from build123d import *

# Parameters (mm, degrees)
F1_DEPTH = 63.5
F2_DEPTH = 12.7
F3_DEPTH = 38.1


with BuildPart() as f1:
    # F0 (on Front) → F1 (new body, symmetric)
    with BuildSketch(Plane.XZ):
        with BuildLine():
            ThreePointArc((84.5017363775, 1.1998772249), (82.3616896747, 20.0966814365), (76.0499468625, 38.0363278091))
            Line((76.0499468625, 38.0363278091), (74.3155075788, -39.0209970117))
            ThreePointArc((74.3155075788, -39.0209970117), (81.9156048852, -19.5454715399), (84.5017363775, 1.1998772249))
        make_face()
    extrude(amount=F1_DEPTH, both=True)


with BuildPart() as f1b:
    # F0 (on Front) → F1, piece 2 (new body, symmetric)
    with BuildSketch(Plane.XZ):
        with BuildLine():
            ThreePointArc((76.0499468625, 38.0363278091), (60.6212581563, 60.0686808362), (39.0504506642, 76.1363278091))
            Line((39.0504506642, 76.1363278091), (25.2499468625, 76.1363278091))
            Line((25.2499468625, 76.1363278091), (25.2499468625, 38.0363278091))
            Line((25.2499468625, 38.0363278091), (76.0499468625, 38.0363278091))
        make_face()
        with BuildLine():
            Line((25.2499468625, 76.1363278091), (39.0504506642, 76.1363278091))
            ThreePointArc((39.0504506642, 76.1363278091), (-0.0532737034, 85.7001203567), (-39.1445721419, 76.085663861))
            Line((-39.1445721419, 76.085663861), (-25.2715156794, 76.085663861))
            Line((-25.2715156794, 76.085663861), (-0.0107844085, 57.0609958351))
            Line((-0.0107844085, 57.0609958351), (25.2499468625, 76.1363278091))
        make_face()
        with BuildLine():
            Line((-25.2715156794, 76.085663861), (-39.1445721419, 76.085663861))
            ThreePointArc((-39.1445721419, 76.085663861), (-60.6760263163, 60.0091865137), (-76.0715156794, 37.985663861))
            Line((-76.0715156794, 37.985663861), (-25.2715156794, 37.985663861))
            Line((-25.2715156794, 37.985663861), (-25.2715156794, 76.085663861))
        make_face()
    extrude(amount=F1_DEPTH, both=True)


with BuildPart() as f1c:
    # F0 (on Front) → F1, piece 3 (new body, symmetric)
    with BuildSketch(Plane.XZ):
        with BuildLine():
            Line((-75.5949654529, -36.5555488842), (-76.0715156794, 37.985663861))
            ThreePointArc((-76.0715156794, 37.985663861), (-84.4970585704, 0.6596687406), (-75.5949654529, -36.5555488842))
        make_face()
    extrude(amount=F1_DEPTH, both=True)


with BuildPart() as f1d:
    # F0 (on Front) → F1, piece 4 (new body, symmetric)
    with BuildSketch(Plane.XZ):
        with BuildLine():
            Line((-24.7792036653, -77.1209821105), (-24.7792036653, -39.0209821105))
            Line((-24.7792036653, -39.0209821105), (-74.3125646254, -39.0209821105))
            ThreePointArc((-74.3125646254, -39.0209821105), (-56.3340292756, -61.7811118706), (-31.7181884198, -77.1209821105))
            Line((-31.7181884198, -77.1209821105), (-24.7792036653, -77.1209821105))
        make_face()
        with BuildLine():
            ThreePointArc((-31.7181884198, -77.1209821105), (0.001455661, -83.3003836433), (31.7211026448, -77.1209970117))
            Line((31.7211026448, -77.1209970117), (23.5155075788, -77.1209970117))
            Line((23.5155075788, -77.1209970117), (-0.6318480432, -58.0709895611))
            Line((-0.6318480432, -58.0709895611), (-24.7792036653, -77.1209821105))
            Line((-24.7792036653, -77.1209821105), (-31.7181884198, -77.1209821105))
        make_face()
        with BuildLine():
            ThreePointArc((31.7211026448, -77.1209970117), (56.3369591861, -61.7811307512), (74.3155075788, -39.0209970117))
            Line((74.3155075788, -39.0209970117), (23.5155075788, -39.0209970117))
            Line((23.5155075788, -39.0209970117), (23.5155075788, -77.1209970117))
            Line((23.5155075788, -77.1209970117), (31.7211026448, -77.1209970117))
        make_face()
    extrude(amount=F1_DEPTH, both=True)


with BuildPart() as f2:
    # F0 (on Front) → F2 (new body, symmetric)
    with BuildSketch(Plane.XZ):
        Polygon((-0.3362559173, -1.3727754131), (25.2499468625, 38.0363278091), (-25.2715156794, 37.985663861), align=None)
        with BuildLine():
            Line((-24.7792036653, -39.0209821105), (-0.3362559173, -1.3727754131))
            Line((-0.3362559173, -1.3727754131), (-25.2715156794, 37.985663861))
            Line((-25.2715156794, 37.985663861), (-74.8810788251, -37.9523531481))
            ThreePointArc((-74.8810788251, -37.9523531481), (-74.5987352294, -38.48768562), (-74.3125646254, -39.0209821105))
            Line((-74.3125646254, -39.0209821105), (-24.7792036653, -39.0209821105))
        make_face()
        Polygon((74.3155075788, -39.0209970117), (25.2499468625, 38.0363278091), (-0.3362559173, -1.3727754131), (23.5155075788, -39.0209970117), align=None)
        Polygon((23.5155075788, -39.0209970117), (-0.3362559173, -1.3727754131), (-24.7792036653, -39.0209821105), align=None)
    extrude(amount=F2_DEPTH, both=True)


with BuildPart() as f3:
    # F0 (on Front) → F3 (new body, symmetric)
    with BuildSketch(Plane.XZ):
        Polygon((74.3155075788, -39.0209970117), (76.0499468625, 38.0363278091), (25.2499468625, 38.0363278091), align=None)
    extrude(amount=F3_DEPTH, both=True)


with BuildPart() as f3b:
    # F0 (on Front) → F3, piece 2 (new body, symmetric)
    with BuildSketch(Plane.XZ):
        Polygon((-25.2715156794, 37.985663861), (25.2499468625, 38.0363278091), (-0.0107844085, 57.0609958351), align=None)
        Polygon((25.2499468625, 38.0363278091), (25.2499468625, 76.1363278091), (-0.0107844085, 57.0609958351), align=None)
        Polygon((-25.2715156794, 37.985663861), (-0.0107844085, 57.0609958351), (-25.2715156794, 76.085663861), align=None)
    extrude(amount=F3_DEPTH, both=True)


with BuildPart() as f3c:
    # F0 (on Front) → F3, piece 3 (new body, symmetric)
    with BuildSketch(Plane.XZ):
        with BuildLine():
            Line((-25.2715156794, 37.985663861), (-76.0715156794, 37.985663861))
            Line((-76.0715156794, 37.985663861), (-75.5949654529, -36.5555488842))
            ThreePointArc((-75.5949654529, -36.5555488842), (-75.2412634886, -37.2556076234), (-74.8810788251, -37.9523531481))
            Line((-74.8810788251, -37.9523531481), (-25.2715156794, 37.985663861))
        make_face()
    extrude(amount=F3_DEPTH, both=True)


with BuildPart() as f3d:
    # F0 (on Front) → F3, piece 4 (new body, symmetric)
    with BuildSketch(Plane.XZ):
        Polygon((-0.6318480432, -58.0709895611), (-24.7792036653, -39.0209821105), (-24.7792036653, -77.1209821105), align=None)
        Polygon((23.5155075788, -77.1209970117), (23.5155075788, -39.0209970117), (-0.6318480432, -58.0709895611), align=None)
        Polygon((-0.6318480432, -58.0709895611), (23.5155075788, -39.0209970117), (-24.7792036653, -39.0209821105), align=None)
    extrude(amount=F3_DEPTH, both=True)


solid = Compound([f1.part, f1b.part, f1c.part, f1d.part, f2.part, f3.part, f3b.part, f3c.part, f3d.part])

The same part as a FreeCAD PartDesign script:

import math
import FreeCAD as App
import Part
import Sketcher
from FreeCAD import Vector
Q = App.Units.Quantity

doc = App.newDocument("Part")
params = doc.addObject("Spreadsheet::Sheet", "Params")
for row, (alias, value) in enumerate([
    ("pad1_length", "5 in"),
    ("sketch2_width", "2 in"),
    ("sketch2_height", "1.5 in"),
    ("pad2_length", "5 in"),
    ("pad3_length", "5 in"),
    ("sketch4_width", "2 in"),
    ("sketch4_height", "1.5 in"),
    ("pad4_length", "5 in"),
    ("sketch5_width", "2 in"),
    ("pad5_length", "1 in"),
    ("sketch6_width", "2 in"),
    ("pad6_length", "3 in"),
    ("sketch7_height", "1.5 in"),
    ("pad7_length", "3 in"),
    ("sketch8_width", "2 in"),
    ("pad8_length", "3 in"),
    ("sketch9_height", "1.5 in"),
    ("pad9_length", "3 in"),
], start=1):
    params.set(f"A{row}", alias)
    params.set(f"B{row}", "=" + value)
    params.setAlias(f"B{row}", alias)

body = doc.addObject("PartDesign::Body", "Body")

# Sketch on XZ plane
sketch1 = body.newObject("Sketcher::SketchObject", "Sketch")
sketch1.AttachmentSupport = (doc.getObject("XZ_Plane"), [""])
sketch1.MapMode = "FlatFace"
sketch1.addGeometry([
    Part.ArcOfCircle(Part.Circle(Vector(0, 1, 0), Vector(0, 0, 1), 85), math.radians(0), math.radians(26)),
    Part.LineSegment(Vector(76, 38, 0), Vector(74, -39, 0)),
    Part.ArcOfCircle(Part.Circle(Vector(0, 1, 0), Vector(0, 0, 1), 85), math.radians(-28), math.radians(0)),
], False)
sketch1.addConstraint([
    Sketcher.Constraint("Coincident", 0, 2, 1, 1),
    Sketcher.Constraint("Coincident", 1, 2, 2, 1),
    Sketcher.Constraint("Tangent", 2, 2, 0, 1),
    Sketcher.Constraint("Equal", 0, 2),
    Sketcher.Constraint("Horizontal", 0, 3, 2, 2),
    Sketcher.Constraint("Radius", 0, 84.500261),
    Sketcher.Constraint("DistanceX", 2, 3, 0, 2, 76.048471),
    Sketcher.Constraint("DistanceX", 1, 2, 0, 2, 1.734439),
    Sketcher.Constraint("DistanceX", -1, 1, 0, 3, 0.001476),
    Sketcher.Constraint("DistanceY", -1, 1, 0, 3, 1.199877),
])
pad1 = body.newObject("PartDesign::Pad", "Pad")
pad1.Profile = sketch1
pad1.setExpression("Length", "Params.pad1_length")
pad1.Midplane = True
body2 = doc.addObject("PartDesign::Body", "Body001")

# Sketch on XZ plane
sketch2 = body2.newObject("Sketcher::SketchObject", "Sketch001")
sketch2.AttachmentSupport = (doc.getObject("XZ_Plane001"), [""])
sketch2.MapMode = "FlatFace"
sketch2.addGeometry([
    Part.ArcOfCircle(Part.Circle(Vector(0, 1, 0), Vector(0, 0, 1), 85), math.radians(26), math.radians(62)),  # 0
    Part.ArcOfCircle(Part.Circle(Vector(0, 1, 0), Vector(0, 0, 1), 85), math.radians(62), math.radians(118)),  # 1
    Part.ArcOfCircle(Part.Circle(Vector(0, 1, 0), Vector(0, 0, 1), 85), math.radians(118), math.radians(154)),  # 2
    Part.LineSegment(Vector(-76, 38, 0), Vector(-25, 38, 0)),  # 3
    Part.LineSegment(Vector(-25, 38, 0), Vector(-25, 76, 0)),  # 4
    Part.LineSegment(Vector(-25, 76, 0), Vector(0, 57, 0)),  # 5
    Part.LineSegment(Vector(0, 57, 0), Vector(25, 76, 0)),  # 6
    Part.LineSegment(Vector(25, 76, 0), Vector(25, 38, 0)),  # 7
    Part.LineSegment(Vector(25, 38, 0), Vector(76, 38, 0)),  # 8
], False)
sketch2.addConstraint([
    Sketcher.Constraint("Tangent", 0, 2, 1, 1),
    Sketcher.Constraint("Tangent", 1, 2, 2, 1),
    Sketcher.Constraint("Coincident", 2, 2, 3, 1),
    Sketcher.Constraint("Coincident", 3, 2, 4, 1),
    Sketcher.Constraint("Coincident", 4, 2, 5, 1),
    Sketcher.Constraint("Coincident", 5, 2, 6, 1),
    Sketcher.Constraint("Coincident", 6, 2, 7, 1),
    Sketcher.Constraint("Coincident", 7, 2, 8, 1),
    Sketcher.Constraint("Coincident", 8, 2, 0, 1),
    Sketcher.Constraint("Horizontal", 3),
    Sketcher.Constraint("Vertical", 4),
    Sketcher.Constraint("Vertical", 7),
    Sketcher.Constraint("Horizontal", 8),
    Sketcher.Constraint("Coincident", 2, 3, 0, 3),
    Sketcher.Constraint("Horizontal", 1, 2, 4, 2),
    Sketcher.Constraint("Horizontal", 0, 2, 6, 2),
    Sketcher.Constraint("Equal", 3, 8),
    Sketcher.Constraint("Equal", 4, 7),
    Sketcher.Constraint("DistanceX", 3, 1, 3, 2, Q("2 in")),
    Sketcher.Constraint("DistanceY", 4, 1, 4, 2, Q("1.5 in")),
    Sketcher.Constraint("Radius", 0, 84.500261),
    Sketcher.Constraint("Distance", 5, 31.623449),
    Sketcher.Constraint("DistanceX", -1, 1, 0, 2, 39.050451),
    Sketcher.Constraint("DistanceY", 1, 3, 0, 2, 74.936451),
    Sketcher.Constraint("DistanceX", 2, 2, 1, 3, 76.072991),
    Sketcher.Constraint("DistanceX", 4, 2, 5, 2, 25.260731),
    Sketcher.Constraint("DistanceY", -1, 1, 0, 3, 1.199877),
])
sketch2.setExpression("Constraints[18]", "Params.sketch2_width")
sketch2.setExpression("Constraints[19]", "Params.sketch2_height")
pad2 = body2.newObject("PartDesign::Pad", "Pad001")
pad2.Profile = sketch2
pad2.setExpression("Length", "Params.pad2_length")
pad2.Midplane = True
body3 = doc.addObject("PartDesign::Body", "Body002")

# Sketch on XZ plane
sketch3 = body3.newObject("Sketcher::SketchObject", "Sketch002")
sketch3.AttachmentSupport = (doc.getObject("XZ_Plane002"), [""])
sketch3.MapMode = "FlatFace"
sketch3.addGeometry([
    Part.LineSegment(Vector(-76, -37, 0), Vector(-76, 38, 0)),
    Part.ArcOfCircle(Part.Circle(Vector(0, 1, 0), Vector(0, 0, 1), 85), math.radians(154), math.radians(207)),
], False)
sketch3.addConstraint([
    Sketcher.Constraint("Coincident", 0, 1, 1, 2),
    Sketcher.Constraint("Coincident", 1, 1, 0, 2),
    Sketcher.Constraint("Radius", 1, 84.500261),
    Sketcher.Constraint("DistanceY", 0, 1, -1, 1, 36.555549),
    Sketcher.Constraint("DistanceX", 0, 1, 1, 3, 75.596441),
    Sketcher.Constraint("DistanceX", 1, 1, 0, 1, 0.47655),
    Sketcher.Constraint("DistanceX", -1, 1, 1, 3, 0.001476),
])
pad3 = body3.newObject("PartDesign::Pad", "Pad002")
pad3.Profile = sketch3
pad3.setExpression("Length", "Params.pad3_length")
pad3.Midplane = True
body4 = doc.addObject("PartDesign::Body", "Body003")

# Sketch on XZ plane
sketch4 = body4.newObject("Sketcher::SketchObject", "Sketch003")
sketch4.AttachmentSupport = (doc.getObject("XZ_Plane003"), [""])
sketch4.MapMode = "FlatFace"
sketch4.addGeometry([
    Part.LineSegment(Vector(-25, -77, 0), Vector(-25, -39, 0)),  # 0
    Part.LineSegment(Vector(-25, -39, 0), Vector(-74, -39, 0)),  # 1
    Part.ArcOfCircle(Part.Circle(Vector(0, 1, 0), Vector(0, 0, 1), 85), math.radians(-152), math.radians(-112)),  # 2
    Part.ArcOfCircle(Part.Circle(Vector(0, 1, 0), Vector(0, 0, 1), 85), math.radians(-112), math.radians(-68)),  # 3
    Part.ArcOfCircle(Part.Circle(Vector(0, 1, 0), Vector(0, 0, 1), 85), math.radians(-68), math.radians(-28)),  # 4
    Part.LineSegment(Vector(74, -39, 0), Vector(24, -39, 0)),  # 5
    Part.LineSegment(Vector(24, -39, 0), Vector(24, -77, 0)),  # 6
    Part.LineSegment(Vector(24, -77, 0), Vector(-1, -58, 0)),  # 7
    Part.LineSegment(Vector(-1, -58, 0), Vector(-25, -77, 0)),  # 8
], False)
sketch4.addConstraint([
    Sketcher.Constraint("Coincident", 0, 2, 1, 1),
    Sketcher.Constraint("Coincident", 1, 2, 2, 1),
    Sketcher.Constraint("Tangent", 2, 2, 3, 1),
    Sketcher.Constraint("Tangent", 3, 2, 4, 1),
    Sketcher.Constraint("Coincident", 4, 2, 5, 1),
    Sketcher.Constraint("Coincident", 5, 2, 6, 1),
    Sketcher.Constraint("Coincident", 6, 2, 7, 1),
    Sketcher.Constraint("Coincident", 7, 2, 8, 1),
    Sketcher.Constraint("Coincident", 8, 2, 0, 1),
    Sketcher.Constraint("Vertical", 0),
    Sketcher.Constraint("Horizontal", 1),
    Sketcher.Constraint("Horizontal", 5),
    Sketcher.Constraint("Vertical", 6),
    Sketcher.Constraint("Coincident", 4, 3, 2, 3),
    Sketcher.Constraint("Horizontal", 3, 2, 6, 2),
    Sketcher.Constraint("Horizontal", 2, 2, 8, 2),
    Sketcher.Constraint("Equal", 0, 6),
    Sketcher.Constraint("DistanceX", 5, 2, 5, 1, Q("2 in")),
    Sketcher.Constraint("DistanceY", 0, 1, 0, 2, Q("1.5 in")),
    Sketcher.Constraint("Radius", 2, 84.500261),
    Sketcher.Constraint("DistanceX", 1, 2, 1, 1, 49.533361),
    Sketcher.Constraint("DistanceX", 2, 2, -1, 1, 31.718188),
    Sketcher.Constraint("DistanceX", 7, 2, -1, 1, 0.631848),
    Sketcher.Constraint("DistanceY", 7, 2, -1, 1, 58.07099),
    Sketcher.Constraint("DistanceX", 0, 2, 2, 3, 24.780679),
    Sketcher.Constraint("DistanceX", 2, 2, 3, 2, 63.439291),
    Sketcher.Constraint("Distance", 7, 30.757073),
])
sketch4.setExpression("Constraints[17]", "Params.sketch4_width")
sketch4.setExpression("Constraints[18]", "Params.sketch4_height")
pad4 = body4.newObject("PartDesign::Pad", "Pad003")
pad4.Profile = sketch4
pad4.setExpression("Length", "Params.pad4_length")
pad4.Midplane = True
body5 = doc.addObject("PartDesign::Body", "Body004")

# Sketch on XZ plane
sketch5 = body5.newObject("Sketcher::SketchObject", "Sketch004")
sketch5.AttachmentSupport = (doc.getObject("XZ_Plane004"), [""])
sketch5.MapMode = "FlatFace"
sketch5.addGeometry([
    Part.LineSegment(Vector(25.2, 38, 0), Vector(-25.3, 38, 0)),  # 0
    Part.LineSegment(Vector(-25.3, 38, 0), Vector(-74.9, -38, 0)),  # 1
    Part.ArcOfCircle(Part.Circle(Vector(0, 1.2, 0), Vector(0, 0, 1), 84.5), math.radians(-152.4), math.radians(-151.58)),  # 2
    Part.LineSegment(Vector(-74.3, -39, 0), Vector(-24.8, -39, 0)),  # 3
    Part.LineSegment(Vector(-24.8, -39, 0), Vector(23.5, -39, 0)),  # 4
    Part.LineSegment(Vector(23.5, -39, 0), Vector(74.3, -39, 0)),  # 5
    Part.LineSegment(Vector(74.3, -39, 0), Vector(25.2, 38, 0)),  # 6
], False)
sketch5.addConstraint([
    Sketcher.Constraint("Coincident", 0, 2, 1, 1),
    Sketcher.Constraint("Coincident", 1, 2, 2, 1),
    Sketcher.Constraint("Coincident", 2, 2, 3, 1),
    Sketcher.Constraint("Coincident", 3, 2, 4, 1),
    Sketcher.Constraint("Coincident", 4, 2, 5, 1),
    Sketcher.Constraint("Coincident", 5, 2, 6, 1),
    Sketcher.Constraint("Coincident", 6, 2, 0, 1),
    Sketcher.Constraint("Horizontal", 3),
    Sketcher.Constraint("Horizontal", 5),
    Sketcher.Constraint("DistanceX", 5, 1, 5, 2, Q("2 in")),
    Sketcher.Constraint("Angle", 4, Q("-0.000018 deg")),
    Sketcher.Constraint("Radius", 2, 84.50026),
    Sketcher.Constraint("DistanceX", 3, 1, 3, 2, 49.533361),
    Sketcher.Constraint("Distance", 1, 90.706621),
    Sketcher.Constraint("Distance", 4, 48.294711),
    Sketcher.Constraint("DistanceX", 1, 2, -1, 1, 74.881079),
    Sketcher.Constraint("DistanceX", 0, 2, 2, 3, 25.27299),
    Sketcher.Constraint("DistanceY", 1, 2, 2, 3, 39.15223),
    Sketcher.Constraint("DistanceY", 2, 2, 1, 2, 1.068629),
    Sketcher.Constraint("DistanceY", 2, 3, 6, 2, 36.836451),
    Sketcher.Constraint("DistanceX", 4, 2, 6, 2, 1.734439),
    Sketcher.Constraint("DistanceY", -1, 1, 2, 3, 1.199877),
])
sketch5.setExpression("Constraints[9]", "Params.sketch5_width")
pad5 = body5.newObject("PartDesign::Pad", "Pad004")
pad5.Profile = sketch5
pad5.setExpression("Length", "Params.pad5_length")
pad5.Midplane = True
body6 = doc.addObject("PartDesign::Body", "Body005")

# Sketch on XZ plane
sketch6 = body6.newObject("Sketcher::SketchObject", "Sketch005")
sketch6.AttachmentSupport = (doc.getObject("XZ_Plane005"), [""])
sketch6.MapMode = "FlatFace"
sketch6.addGeometry([
    Part.LineSegment(Vector(74, -39, 0), Vector(76, 38, 0)),
    Part.LineSegment(Vector(76, 38, 0), Vector(25, 38, 0)),
    Part.LineSegment(Vector(25, 38, 0), Vector(74, -39, 0)),
], False)
sketch6.addConstraint([
    Sketcher.Constraint("Coincident", 0, 2, 1, 1),
    Sketcher.Constraint("Coincident", 1, 2, 2, 1),
    Sketcher.Constraint("Coincident", 2, 2, 0, 1),
    Sketcher.Constraint("Horizontal", 1),
    Sketcher.Constraint("DistanceX", 1, 2, 1, 1, Q("2 in")),
    Sketcher.Constraint("DistanceX", 2, 2, 0, 2, 1.734439),
    Sketcher.Constraint("Distance", 0, 77.076842),
    Sketcher.Constraint("DistanceX", -1, 1, 0, 2, 76.049947),
    Sketcher.Constraint("DistanceY", -1, 1, 0, 2, 38.036328),
])
sketch6.setExpression("Constraints[4]", "Params.sketch6_width")
pad6 = body6.newObject("PartDesign::Pad", "Pad005")
pad6.Profile = sketch6
pad6.setExpression("Length", "Params.pad6_length")
pad6.Midplane = True
body7 = doc.addObject("PartDesign::Body", "Body006")

# Sketch on XZ plane
sketch7 = body7.newObject("Sketcher::SketchObject", "Sketch006")
sketch7.AttachmentSupport = (doc.getObject("XZ_Plane006"), [""])
sketch7.MapMode = "FlatFace"
sketch7.addGeometry([
    Part.LineSegment(Vector(-25, 38, 0), Vector(25, 38, 0)),  # 0
    Part.LineSegment(Vector(25, 38, 0), Vector(25, 76, 0)),  # 1
    Part.LineSegment(Vector(25, 76, 0), Vector(0, 57, 0)),  # 2
    Part.LineSegment(Vector(0, 57, 0), Vector(-25, 76, 0)),  # 3
    Part.LineSegment(Vector(-25, 76, 0), Vector(-25, 38, 0)),  # 4
], False)
sketch7.addConstraint([
    Sketcher.Constraint("Coincident", 0, 2, 1, 1),
    Sketcher.Constraint("Coincident", 1, 2, 2, 1),
    Sketcher.Constraint("Coincident", 2, 2, 3, 1),
    Sketcher.Constraint("Coincident", 3, 2, 4, 1),
    Sketcher.Constraint("Coincident", 4, 2, 0, 1),
    Sketcher.Constraint("Vertical", 1),
    Sketcher.Constraint("Vertical", 4),
    Sketcher.Constraint("Equal", 1, 4),
    Sketcher.Constraint("DistanceY", 1, 1, 1, 2, Q("1.5 in")),
    Sketcher.Constraint("Distance", 3, 31.623449),
    Sketcher.Constraint("DistanceX", 2, 2, 0, 2, 25.260731),
    Sketcher.Constraint("DistanceY", 0, 2, 2, 2, 19.024668),
    Sketcher.Constraint("DistanceX", 3, 2, 2, 2, 25.260731),
    Sketcher.Constraint("DistanceX", -1, 1, 0, 2, 25.249947),
    Sketcher.Constraint("DistanceY", -1, 1, 0, 2, 38.036328),
])
sketch7.setExpression("Constraints[8]", "Params.sketch7_height")
pad7 = body7.newObject("PartDesign::Pad", "Pad006")
pad7.Profile = sketch7
pad7.setExpression("Length", "Params.pad7_length")
pad7.Midplane = True
body8 = doc.addObject("PartDesign::Body", "Body007")

# Sketch on XZ plane
sketch8 = body8.newObject("Sketcher::SketchObject", "Sketch007")
sketch8.AttachmentSupport = (doc.getObject("XZ_Plane007"), [""])
sketch8.MapMode = "FlatFace"
sketch8.addGeometry([
    Part.LineSegment(Vector(-25.3, 38, 0), Vector(-76.1, 38, 0)),
    Part.LineSegment(Vector(-76.1, 38, 0), Vector(-75.6, -36.6, 0)),
    Part.ArcOfCircle(Part.Circle(Vector(0, 1.2, 0), Vector(0, 0, 1), 84.5), math.radians(-153.46), math.radians(-152.4)),
    Part.LineSegment(Vector(-74.9, -38, 0), Vector(-25.3, 38, 0)),
], False)
sketch8.addConstraint([
    Sketcher.Constraint("Coincident", 0, 2, 1, 1),
    Sketcher.Constraint("Coincident", 1, 2, 2, 1),
    Sketcher.Constraint("Coincident", 2, 2, 3, 1),
    Sketcher.Constraint("Coincident", 3, 2, 0, 1),
    Sketcher.Constraint("Horizontal", 0),
    Sketcher.Constraint("DistanceX", 0, 2, 0, 1, Q("2 in")),
    Sketcher.Constraint("Radius", 2, 84.500261),
    Sketcher.Constraint("Distance", 3, 90.706621),
    Sketcher.Constraint("DistanceY", 1, 2, -1, 1, 36.555549),
    Sketcher.Constraint("DistanceX", 2, 2, -1, 1, 74.881079),
    Sketcher.Constraint("DistanceX", 0, 2, 2, 3, 76.072992),
    Sketcher.Constraint("DistanceX", 0, 2, 1, 2, 0.47655),
    Sketcher.Constraint("DistanceY", 2, 2, 2, 3, 39.152231),
])
sketch8.setExpression("Constraints[5]", "Params.sketch8_width")
pad8 = body8.newObject("PartDesign::Pad", "Pad007")
pad8.Profile = sketch8
pad8.setExpression("Length", "Params.pad8_length")
pad8.Midplane = True
body9 = doc.addObject("PartDesign::Body", "Body008")

# Sketch on XZ plane
sketch9 = body9.newObject("Sketcher::SketchObject", "Sketch008")
sketch9.AttachmentSupport = (doc.getObject("XZ_Plane008"), [""])
sketch9.MapMode = "FlatFace"
sketch9.addGeometry([
    Part.LineSegment(Vector(-25, -39, 0), Vector(-25, -77, 0)),  # 0
    Part.LineSegment(Vector(-25, -77, 0), Vector(-1, -58, 0)),  # 1
    Part.LineSegment(Vector(-1, -58, 0), Vector(24, -77, 0)),  # 2
    Part.LineSegment(Vector(24, -77, 0), Vector(24, -39, 0)),  # 3
    Part.LineSegment(Vector(24, -39, 0), Vector(-25, -39, 0)),  # 4
], False)
sketch9.addConstraint([
    Sketcher.Constraint("Coincident", 0, 2, 1, 1),
    Sketcher.Constraint("Coincident", 1, 2, 2, 1),
    Sketcher.Constraint("Coincident", 2, 2, 3, 1),
    Sketcher.Constraint("Coincident", 3, 2, 4, 1),
    Sketcher.Constraint("Coincident", 4, 2, 0, 1),
    Sketcher.Constraint("Vertical", 0),
    Sketcher.Constraint("Vertical", 3),
    Sketcher.Constraint("Equal", 0, 3),
    Sketcher.Constraint("DistanceY", 0, 2, 0, 1, Q("1.5 in")),
    Sketcher.Constraint("Angle", 4, Q("179.999982 deg")),
    Sketcher.Constraint("Distance", 4, 48.294711),
    Sketcher.Constraint("DistanceX", 1, 2, -1, 1, 0.631848),
    Sketcher.Constraint("DistanceY", 1, 2, -1, 1, 58.07099),
    Sketcher.Constraint("Distance", 1, 30.757064),
    Sketcher.Constraint("Distance", 2, 30.757073),
])
sketch9.setExpression("Constraints[8]", "Params.sketch9_height")
pad9 = body9.newObject("PartDesign::Pad", "Pad008")
pad9.Profile = sketch9
pad9.setExpression("Length", "Params.pad9_length")
pad9.Midplane = True

doc.recompute()
